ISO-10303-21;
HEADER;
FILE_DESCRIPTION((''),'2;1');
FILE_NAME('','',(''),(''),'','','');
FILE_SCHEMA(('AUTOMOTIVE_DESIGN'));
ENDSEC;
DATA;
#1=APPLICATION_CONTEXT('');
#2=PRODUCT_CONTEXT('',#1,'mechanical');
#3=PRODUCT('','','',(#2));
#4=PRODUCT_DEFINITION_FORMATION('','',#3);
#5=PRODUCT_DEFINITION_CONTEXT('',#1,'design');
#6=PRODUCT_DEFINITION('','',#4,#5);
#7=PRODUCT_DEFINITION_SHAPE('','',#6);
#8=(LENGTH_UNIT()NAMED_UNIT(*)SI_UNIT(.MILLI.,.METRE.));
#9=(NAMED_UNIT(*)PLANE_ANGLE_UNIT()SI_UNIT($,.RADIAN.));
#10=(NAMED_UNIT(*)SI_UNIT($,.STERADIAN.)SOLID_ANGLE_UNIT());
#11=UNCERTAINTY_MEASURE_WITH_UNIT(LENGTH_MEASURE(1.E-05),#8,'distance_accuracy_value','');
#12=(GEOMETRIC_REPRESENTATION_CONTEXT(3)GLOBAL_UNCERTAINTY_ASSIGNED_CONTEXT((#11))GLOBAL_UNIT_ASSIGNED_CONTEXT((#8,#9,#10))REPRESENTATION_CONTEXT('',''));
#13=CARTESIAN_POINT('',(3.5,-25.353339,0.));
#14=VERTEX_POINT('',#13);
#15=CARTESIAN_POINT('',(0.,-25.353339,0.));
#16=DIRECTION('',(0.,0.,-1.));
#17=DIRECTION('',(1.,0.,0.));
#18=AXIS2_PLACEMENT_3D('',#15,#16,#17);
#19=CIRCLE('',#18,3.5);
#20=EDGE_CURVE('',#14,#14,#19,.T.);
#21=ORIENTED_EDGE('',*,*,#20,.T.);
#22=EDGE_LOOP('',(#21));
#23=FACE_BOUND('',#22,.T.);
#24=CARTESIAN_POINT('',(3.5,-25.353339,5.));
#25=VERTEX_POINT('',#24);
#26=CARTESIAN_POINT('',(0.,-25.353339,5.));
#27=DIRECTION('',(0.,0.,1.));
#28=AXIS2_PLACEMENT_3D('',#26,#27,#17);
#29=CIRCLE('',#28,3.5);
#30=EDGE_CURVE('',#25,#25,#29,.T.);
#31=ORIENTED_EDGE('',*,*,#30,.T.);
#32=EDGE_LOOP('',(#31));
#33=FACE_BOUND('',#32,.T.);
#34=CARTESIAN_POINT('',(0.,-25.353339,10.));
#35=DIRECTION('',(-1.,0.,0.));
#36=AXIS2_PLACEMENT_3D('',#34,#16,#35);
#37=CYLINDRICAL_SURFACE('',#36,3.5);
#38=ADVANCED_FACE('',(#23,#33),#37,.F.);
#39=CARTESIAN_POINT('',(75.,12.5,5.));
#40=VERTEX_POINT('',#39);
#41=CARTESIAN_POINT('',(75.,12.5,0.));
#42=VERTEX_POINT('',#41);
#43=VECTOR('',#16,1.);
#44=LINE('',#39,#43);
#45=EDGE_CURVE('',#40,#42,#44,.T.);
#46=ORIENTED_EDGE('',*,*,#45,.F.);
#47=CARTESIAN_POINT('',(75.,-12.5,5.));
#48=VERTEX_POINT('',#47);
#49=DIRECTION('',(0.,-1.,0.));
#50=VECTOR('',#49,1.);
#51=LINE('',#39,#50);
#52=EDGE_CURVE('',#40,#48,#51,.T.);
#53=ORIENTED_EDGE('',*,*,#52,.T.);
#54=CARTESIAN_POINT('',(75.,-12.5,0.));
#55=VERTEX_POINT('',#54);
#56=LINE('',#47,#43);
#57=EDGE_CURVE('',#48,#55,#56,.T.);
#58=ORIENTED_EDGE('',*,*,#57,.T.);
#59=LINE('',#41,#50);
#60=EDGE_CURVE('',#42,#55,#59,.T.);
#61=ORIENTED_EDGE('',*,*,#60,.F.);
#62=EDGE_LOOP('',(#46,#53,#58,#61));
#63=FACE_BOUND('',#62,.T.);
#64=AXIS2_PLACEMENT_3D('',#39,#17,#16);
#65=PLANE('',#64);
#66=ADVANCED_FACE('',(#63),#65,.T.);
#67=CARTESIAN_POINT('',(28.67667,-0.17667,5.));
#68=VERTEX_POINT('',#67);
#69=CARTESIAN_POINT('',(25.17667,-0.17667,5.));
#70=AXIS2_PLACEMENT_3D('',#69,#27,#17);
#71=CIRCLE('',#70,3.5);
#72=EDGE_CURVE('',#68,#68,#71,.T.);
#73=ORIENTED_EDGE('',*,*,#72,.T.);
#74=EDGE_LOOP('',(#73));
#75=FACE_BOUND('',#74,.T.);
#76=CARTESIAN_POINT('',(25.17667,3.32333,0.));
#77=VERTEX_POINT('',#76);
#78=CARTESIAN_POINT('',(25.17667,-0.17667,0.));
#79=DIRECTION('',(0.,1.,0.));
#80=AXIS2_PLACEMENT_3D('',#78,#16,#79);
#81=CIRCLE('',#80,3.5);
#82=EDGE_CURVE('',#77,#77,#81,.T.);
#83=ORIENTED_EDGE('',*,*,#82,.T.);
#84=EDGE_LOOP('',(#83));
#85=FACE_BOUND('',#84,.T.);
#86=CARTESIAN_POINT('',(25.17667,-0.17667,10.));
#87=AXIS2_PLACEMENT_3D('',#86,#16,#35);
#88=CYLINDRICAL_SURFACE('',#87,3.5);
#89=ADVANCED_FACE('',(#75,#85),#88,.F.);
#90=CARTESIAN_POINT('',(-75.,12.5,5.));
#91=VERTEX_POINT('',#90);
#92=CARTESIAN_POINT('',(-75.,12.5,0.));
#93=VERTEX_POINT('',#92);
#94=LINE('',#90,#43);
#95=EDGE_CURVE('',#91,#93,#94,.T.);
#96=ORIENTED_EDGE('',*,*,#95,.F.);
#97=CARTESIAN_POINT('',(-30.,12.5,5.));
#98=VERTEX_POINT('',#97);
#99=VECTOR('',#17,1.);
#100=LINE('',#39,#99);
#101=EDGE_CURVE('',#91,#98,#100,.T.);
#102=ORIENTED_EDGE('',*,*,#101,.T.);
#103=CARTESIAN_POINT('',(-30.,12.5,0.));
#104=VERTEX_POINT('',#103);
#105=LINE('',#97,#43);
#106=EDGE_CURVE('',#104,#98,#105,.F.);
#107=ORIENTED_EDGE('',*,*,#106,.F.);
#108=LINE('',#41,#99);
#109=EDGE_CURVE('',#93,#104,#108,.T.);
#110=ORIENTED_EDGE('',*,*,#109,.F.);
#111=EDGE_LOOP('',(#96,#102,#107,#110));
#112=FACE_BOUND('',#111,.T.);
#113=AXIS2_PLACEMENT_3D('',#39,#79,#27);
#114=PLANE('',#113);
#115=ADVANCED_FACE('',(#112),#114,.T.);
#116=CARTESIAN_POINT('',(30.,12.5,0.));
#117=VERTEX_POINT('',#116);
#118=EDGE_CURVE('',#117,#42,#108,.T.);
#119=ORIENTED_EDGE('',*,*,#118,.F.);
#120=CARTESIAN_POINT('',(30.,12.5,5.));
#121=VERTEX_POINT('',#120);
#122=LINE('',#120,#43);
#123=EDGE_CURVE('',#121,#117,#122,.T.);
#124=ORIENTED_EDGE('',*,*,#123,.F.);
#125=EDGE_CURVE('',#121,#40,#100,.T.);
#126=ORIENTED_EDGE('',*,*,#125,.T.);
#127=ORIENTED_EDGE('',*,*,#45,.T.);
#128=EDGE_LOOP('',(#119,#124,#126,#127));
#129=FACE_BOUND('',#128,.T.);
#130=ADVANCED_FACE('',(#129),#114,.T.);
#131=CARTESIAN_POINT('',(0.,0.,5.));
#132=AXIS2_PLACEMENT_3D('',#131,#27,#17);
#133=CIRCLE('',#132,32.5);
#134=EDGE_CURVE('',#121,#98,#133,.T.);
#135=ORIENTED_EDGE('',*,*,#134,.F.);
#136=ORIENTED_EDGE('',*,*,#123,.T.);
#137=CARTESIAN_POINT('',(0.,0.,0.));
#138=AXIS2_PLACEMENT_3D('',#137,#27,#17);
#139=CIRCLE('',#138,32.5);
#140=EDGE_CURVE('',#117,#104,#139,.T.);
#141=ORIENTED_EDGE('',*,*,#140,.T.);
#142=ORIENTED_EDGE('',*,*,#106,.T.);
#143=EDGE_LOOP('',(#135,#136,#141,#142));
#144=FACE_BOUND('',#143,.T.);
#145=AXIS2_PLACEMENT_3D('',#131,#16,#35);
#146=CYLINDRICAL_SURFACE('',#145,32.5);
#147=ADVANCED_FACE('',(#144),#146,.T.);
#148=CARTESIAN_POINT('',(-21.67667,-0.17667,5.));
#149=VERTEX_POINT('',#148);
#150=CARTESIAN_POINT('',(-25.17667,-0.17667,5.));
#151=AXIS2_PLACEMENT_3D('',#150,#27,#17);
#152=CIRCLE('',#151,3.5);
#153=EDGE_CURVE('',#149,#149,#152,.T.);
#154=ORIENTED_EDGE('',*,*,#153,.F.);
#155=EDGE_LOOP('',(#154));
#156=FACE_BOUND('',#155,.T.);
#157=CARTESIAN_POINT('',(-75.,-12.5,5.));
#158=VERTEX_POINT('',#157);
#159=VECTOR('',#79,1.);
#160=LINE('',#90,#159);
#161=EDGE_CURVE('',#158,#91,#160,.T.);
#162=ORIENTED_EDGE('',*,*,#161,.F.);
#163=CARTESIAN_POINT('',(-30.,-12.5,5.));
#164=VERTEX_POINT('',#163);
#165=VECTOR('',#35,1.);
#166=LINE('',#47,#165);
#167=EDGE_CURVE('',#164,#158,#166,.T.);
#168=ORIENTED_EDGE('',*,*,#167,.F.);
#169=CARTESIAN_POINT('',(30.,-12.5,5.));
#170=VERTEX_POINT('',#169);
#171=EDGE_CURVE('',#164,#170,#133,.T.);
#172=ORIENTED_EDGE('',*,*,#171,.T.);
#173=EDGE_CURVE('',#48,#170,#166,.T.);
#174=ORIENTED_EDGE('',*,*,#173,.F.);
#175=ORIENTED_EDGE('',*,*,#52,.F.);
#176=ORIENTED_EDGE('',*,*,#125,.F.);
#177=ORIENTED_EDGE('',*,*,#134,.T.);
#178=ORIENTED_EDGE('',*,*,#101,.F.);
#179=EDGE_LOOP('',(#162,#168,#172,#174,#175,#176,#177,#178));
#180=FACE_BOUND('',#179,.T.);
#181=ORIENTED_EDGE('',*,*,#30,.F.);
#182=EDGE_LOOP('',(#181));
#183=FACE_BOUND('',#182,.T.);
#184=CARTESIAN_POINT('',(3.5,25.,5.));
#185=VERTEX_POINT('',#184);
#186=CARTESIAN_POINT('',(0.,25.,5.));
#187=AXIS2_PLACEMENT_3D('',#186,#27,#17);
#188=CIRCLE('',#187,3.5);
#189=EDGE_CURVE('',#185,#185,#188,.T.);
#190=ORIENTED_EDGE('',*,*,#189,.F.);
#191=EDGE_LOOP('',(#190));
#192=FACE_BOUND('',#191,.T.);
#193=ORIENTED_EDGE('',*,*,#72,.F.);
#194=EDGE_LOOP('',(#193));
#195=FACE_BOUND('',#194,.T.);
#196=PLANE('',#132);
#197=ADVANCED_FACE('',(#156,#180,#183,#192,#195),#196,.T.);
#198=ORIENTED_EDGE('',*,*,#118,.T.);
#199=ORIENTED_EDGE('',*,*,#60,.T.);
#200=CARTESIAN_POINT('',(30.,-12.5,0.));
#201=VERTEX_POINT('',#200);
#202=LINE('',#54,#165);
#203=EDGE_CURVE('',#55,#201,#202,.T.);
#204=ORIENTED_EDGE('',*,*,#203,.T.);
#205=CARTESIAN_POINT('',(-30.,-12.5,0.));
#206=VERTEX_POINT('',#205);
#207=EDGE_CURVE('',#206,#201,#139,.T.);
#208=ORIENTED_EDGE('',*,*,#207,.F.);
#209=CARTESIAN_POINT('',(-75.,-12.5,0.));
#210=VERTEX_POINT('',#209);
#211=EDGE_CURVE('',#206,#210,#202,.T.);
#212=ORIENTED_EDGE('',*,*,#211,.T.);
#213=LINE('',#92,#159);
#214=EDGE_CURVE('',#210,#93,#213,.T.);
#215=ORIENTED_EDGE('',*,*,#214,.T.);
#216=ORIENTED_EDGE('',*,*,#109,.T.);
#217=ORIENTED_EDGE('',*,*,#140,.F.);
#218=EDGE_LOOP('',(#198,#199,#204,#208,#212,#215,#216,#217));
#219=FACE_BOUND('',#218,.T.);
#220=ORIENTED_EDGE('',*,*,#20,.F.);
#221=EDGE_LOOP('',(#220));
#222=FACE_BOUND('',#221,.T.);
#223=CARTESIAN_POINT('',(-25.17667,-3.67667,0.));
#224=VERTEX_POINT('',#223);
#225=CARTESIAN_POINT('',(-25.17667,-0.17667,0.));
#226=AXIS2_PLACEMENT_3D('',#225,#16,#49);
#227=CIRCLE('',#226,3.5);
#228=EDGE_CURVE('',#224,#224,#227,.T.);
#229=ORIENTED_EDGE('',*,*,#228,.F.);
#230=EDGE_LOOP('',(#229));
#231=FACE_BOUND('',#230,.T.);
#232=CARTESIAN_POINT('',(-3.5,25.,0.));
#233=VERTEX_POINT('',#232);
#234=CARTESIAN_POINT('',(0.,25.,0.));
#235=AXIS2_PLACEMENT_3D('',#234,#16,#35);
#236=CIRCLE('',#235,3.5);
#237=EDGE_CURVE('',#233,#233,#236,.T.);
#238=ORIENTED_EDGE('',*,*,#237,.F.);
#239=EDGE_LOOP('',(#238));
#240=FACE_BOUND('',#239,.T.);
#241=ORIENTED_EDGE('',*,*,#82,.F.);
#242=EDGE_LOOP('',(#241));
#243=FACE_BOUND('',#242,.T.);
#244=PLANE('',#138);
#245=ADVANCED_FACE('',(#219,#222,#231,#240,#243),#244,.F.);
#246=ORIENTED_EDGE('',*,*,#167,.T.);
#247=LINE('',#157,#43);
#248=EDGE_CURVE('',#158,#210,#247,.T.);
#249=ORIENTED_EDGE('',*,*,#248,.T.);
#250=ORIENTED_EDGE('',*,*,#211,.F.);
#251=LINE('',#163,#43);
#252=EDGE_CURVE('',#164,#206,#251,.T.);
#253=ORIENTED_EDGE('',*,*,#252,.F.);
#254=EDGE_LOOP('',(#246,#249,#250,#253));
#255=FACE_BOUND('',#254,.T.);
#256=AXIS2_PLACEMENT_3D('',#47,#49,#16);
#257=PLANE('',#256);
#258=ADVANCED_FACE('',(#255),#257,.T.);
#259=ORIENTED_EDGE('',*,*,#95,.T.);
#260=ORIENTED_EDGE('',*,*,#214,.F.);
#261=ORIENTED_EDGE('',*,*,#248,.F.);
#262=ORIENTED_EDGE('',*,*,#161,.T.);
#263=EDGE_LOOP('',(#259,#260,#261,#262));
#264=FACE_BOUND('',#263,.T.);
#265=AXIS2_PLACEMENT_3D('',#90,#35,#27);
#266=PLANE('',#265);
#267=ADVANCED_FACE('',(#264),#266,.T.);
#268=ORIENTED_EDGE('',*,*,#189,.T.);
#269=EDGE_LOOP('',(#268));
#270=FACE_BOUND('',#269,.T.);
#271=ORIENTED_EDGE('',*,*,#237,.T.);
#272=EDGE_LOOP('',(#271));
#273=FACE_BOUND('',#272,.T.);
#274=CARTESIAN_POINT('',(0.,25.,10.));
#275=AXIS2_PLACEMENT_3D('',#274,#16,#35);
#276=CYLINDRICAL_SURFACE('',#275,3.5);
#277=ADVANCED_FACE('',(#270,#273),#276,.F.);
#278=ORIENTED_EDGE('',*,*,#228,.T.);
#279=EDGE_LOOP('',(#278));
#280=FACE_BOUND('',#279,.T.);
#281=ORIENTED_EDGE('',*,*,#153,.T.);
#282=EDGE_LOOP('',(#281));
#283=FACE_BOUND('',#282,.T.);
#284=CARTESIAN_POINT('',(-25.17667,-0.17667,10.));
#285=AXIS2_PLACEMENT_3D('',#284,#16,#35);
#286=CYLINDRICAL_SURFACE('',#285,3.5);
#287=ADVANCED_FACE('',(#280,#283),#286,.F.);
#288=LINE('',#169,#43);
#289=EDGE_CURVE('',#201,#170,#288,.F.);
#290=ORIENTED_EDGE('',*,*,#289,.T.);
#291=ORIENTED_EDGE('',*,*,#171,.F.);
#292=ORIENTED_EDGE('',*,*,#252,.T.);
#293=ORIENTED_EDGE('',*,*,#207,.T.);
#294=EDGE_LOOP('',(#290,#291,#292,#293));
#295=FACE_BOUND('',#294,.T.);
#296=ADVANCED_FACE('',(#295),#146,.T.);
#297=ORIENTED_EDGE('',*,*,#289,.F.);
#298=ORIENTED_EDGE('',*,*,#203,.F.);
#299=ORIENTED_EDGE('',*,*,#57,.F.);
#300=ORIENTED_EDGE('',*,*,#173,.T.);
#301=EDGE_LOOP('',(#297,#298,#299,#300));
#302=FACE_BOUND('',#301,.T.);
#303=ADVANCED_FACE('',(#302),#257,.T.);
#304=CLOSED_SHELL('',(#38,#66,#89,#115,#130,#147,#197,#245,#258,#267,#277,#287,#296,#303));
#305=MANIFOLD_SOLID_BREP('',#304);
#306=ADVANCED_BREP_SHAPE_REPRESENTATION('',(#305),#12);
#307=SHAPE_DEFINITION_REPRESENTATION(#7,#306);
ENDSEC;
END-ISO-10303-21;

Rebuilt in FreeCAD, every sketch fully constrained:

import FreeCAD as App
import Part
import Sketcher
Q = App.Units.Quantity


def add_polygon(sketch, points):
    """Adds a closed chain of lines whose ends are joined by coincident constraints."""
    first, n = sketch.GeometryCount, len(points)
    for a, b in zip(points, points[1:] + points[:1]):
        sketch.addGeometry(Part.LineSegment(App.Vector(*a, 0), App.Vector(*b, 0)), False)
    for i in range(n):
        sketch.addConstraint(Sketcher.Constraint("Coincident", first + i, 2, first + (i + 1) % n, 1))

doc = App.newDocument("Part")
body = doc.addObject("PartDesign::Body", "Body")

sketch1 = body.newObject("Sketcher::SketchObject", "Sketch")
sketch1.AttachmentSupport = (doc.getObject("XY_Plane"), [""])
sketch1.MapMode = "FlatFace"
sketch1.addGeometry(Part.Circle(App.Vector(0, 0, 0), App.Vector(0, 0, 1), 32), False)
sketch1.addConstraint([
    Sketcher.Constraint("Coincident", 0, 3, -1, 1),
    Sketcher.Constraint("Diameter", 0, Q("65 mm")),
])
pad1 = body.newObject("PartDesign::Pad", "Pad")
pad1.Profile = sketch1
pad1.Length = 5

sketch2 = body.newObject("Sketcher::SketchObject", "Sketch001")
sketch2.AttachmentSupport = (doc.getObject("XY_Plane"), [""])
sketch2.MapMode = "FlatFace"
sketch2.addGeometry(Part.Circle(App.Vector(0, 25, 0), App.Vector(0, 0, 1), 3.5), False)
sketch2.addConstraint([
    Sketcher.Constraint("PointOnObject", 0, 3, -2),
    Sketcher.Constraint("Diameter", 0, Q("7 mm")),
    Sketcher.Constraint("DistanceY", -1, 1, 0, 3, Q("25 mm")),
])
pocket1 = body.newObject("PartDesign::Pocket", "Pocket")
pocket1.Profile = sketch2
pocket1.Length = 10
pocket1.Reversed = True

sketch3 = body.newObject("Sketcher::SketchObject", "Sketch002")
sketch3.AttachmentSupport = (doc.getObject("XY_Plane"), [""])
sketch3.MapMode = "FlatFace"
add_polygon(sketch3, [(75, 12), (75, -12), (-75, -12), (-75, 12)])
sketch3.addConstraint([
    Sketcher.Constraint("Vertical", 0),
    Sketcher.Constraint("Horizontal", 1),
    Sketcher.Constraint("Vertical", 2),
    Sketcher.Constraint("Horizontal", 3),
    Sketcher.Constraint("Symmetric", 0, 2, 2, 2, -1, 1),
    Sketcher.Constraint("DistanceX", 1, 2, 1, 1, Q("150 mm")),
    Sketcher.Constraint("DistanceY", 0, 2, 0, 1, Q("25 mm")),
])
pad2 = body.newObject("PartDesign::Pad", "Pad001")
pad2.Profile = sketch3
pad2.Length = 5
doc.recompute()

datumline = body.newObject("PartDesign::Line", "DatumLine")
datumline.Placement = App.Placement(App.Vector(0, -0.17667, 0), App.Rotation(App.Vector(0, 0, 1), App.Vector(0, 0, 1)))
polarpattern = body.newObject("PartDesign::PolarPattern", "PolarPattern")
polarpattern.Originals = [pocket1]
polarpattern.Axis = (datumline, [""])
polarpattern.Angle = 360
polarpattern.Occurrences = 4
body.Tip = polarpattern

doc.recompute()
